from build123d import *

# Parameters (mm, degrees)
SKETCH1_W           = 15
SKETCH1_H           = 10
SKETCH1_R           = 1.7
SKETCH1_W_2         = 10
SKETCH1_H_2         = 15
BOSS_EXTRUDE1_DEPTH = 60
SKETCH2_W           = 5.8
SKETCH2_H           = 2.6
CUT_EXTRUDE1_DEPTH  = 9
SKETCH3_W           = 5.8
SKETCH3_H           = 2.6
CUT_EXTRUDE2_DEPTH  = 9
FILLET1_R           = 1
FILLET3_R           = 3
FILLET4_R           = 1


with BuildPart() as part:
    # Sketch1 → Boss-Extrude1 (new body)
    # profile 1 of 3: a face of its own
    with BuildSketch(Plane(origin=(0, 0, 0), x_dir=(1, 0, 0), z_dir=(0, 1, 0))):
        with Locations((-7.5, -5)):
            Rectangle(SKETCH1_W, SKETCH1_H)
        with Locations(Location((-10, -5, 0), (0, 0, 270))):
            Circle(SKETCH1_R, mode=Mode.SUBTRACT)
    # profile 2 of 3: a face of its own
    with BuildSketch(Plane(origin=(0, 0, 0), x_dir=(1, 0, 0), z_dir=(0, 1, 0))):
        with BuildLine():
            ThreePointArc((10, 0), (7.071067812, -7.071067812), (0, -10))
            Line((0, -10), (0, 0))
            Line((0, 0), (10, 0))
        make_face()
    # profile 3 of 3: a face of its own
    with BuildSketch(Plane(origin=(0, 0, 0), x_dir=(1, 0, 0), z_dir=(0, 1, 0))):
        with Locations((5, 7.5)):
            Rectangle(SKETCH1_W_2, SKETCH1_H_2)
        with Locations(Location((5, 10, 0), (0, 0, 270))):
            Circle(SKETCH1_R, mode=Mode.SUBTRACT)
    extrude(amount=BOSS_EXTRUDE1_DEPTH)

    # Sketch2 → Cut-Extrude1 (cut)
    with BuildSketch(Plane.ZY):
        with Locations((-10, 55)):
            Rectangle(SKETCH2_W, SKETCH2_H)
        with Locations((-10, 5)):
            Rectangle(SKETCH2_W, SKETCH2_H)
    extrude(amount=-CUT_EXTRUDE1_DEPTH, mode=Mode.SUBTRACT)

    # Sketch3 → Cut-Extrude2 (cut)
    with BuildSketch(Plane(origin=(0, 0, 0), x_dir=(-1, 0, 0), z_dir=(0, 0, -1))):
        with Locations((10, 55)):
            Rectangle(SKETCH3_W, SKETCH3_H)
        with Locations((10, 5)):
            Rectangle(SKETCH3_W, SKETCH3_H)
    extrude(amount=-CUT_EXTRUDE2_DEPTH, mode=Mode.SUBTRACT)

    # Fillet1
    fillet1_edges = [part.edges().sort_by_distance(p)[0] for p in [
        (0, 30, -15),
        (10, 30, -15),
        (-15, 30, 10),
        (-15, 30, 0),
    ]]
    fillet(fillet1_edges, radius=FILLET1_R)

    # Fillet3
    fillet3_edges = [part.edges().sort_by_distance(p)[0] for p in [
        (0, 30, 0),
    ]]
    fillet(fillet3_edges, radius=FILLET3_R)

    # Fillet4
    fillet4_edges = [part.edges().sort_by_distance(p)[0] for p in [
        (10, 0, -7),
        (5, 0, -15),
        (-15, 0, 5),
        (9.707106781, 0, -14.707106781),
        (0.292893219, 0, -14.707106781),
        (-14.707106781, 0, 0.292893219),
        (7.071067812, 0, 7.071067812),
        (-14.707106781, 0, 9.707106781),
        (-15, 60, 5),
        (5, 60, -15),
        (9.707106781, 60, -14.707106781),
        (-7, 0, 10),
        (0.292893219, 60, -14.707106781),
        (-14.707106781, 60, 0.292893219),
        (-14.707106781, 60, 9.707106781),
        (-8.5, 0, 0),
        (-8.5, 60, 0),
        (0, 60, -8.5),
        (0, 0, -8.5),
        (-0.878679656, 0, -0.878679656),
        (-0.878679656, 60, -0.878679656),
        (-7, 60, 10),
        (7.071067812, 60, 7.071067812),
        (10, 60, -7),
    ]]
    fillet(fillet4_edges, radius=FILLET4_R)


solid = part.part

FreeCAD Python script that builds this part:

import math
import FreeCAD as App
import Part
import Sketcher
Q = App.Units.Quantity


def edges_at(feature, points):
    """Names of the edges that pass closest to the given points."""
    edges = feature.Shape.Edges
    near = lambda p: min(range(len(edges)), key=lambda i: edges[i].distToShape(Part.Vertex(*p))[0])
    return sorted({f"Edge{near(p) + 1}" for p in points})


def add_polygon(sketch, points):
    """Adds a closed chain of lines whose ends are joined by coincident constraints."""
    first, n = sketch.GeometryCount, len(points)
    for a, b in zip(points, points[1:] + points[:1]):
        sketch.addGeometry(Part.LineSegment(App.Vector(*a, 0), App.Vector(*b, 0)), False)
    for i in range(n):
        sketch.addConstraint(Sketcher.Constraint("Coincident", first + i, 2, first + (i + 1) % n, 1))

doc = App.newDocument("Part")
params = doc.addObject("Spreadsheet::Sheet", "Params")
for row, (alias, value) in enumerate([
    ("sketch1_radius", "10 mm"),
    ("sketch1_diameter", "3.4 mm"),
    ("sketch1_width", "15 mm"),
    ("pad1_length", "60 mm"),
    ("sketch2_width", "2.6 mm"),
    ("sketch2_height", "5.8 mm"),
    ("pocket1_length", "9 mm"),
    ("sketch3_width", "5.8 mm"),
    ("sketch3_height", "2.6 mm"),
    ("pocket2_length", "9 mm"),
    ("fillet_radius", "1 mm"),
    ("fillet2_radius", "3 mm"),
    ("fillet3_radius", "1 mm"),
], start=1):
    params.set(f"A{row}", alias)
    params.set(f"B{row}", "=" + value)
    params.setAlias(f"B{row}", alias)

body = doc.addObject("PartDesign::Body", "Body")

# Sketch on XZ plane
sketch1 = body.newObject("Sketcher::SketchObject", "Sketch")
sketch1.AttachmentSupport = (doc.getObject("XZ_Plane"), [""])
sketch1.MapMode = "FlatFace"
sketch1.addGeometry([
    Part.LineSegment(App.Vector(-15, 0, 0), App.Vector(-15, 10, 0)),  # 0
    Part.LineSegment(App.Vector(-15, 10, 0), App.Vector(0, 10, 0)),  # 1
    Part.ArcOfCircle(Part.Circle(App.Vector(0, 0, 0), App.Vector(0, 0, 1), 10), math.radians(0), math.radians(90)),  # 2
    Part.LineSegment(App.Vector(10, 0, 0), App.Vector(10, -15, 0)),  # 3
    Part.LineSegment(App.Vector(10, -15, 0), App.Vector(0, -15, 0)),  # 4
    Part.LineSegment(App.Vector(0, -15, 0), App.Vector(0, 0, 0)),  # 5
    Part.LineSegment(App.Vector(0, 0, 0), App.Vector(-15, 0, 0)),  # 6
    Part.Circle(App.Vector(-10, 5, 0), App.Vector(0, 0, 1), 1.7),  # 7
    Part.Circle(App.Vector(5, -10, 0), App.Vector(0, 0, 1), 1.7),  # 8
], False)
sketch1.addConstraint([
    Sketcher.Constraint("Coincident", 0, 2, 1, 1),
    Sketcher.Constraint("Tangent", 1, 2, 2, 2),
    Sketcher.Constraint("Tangent", 2, 1, 3, 1),
    Sketcher.Constraint("Coincident", 3, 2, 4, 1),
    Sketcher.Constraint("Coincident", 4, 2, 5, 1),
    Sketcher.Constraint("Coincident", 5, 2, 6, 1),
    Sketcher.Constraint("Coincident", 6, 2, 0, 1),
    Sketcher.Constraint("Vertical", 0),
    Sketcher.Constraint("Horizontal", 1),
    Sketcher.Constraint("Vertical", 3),
    Sketcher.Constraint("Horizontal", 4),
    Sketcher.Constraint("Vertical", 5),
    Sketcher.Constraint("Horizontal", 6),
    Sketcher.Constraint("Coincident", 2, 3, -1, 1),
    Sketcher.Constraint("Coincident", 5, 2, -1, 1),
    Sketcher.Constraint("Equal", 7, 8),
    Sketcher.Constraint("Equal", 6, 3),
    Sketcher.Constraint("Radius", 2, Q("10 mm")),
    Sketcher.Constraint("Diameter", 7, Q("3.4 mm")),
    Sketcher.Constraint("DistanceX", 1, 1, 1, 2, Q("15 mm")),
    Sketcher.Constraint("DistanceX", 7, 3, -1, 1, Q("10 mm")),
    Sketcher.Constraint("DistanceY", -1, 1, 7, 3, Q("5 mm")),
    Sketcher.Constraint("DistanceX", -1, 1, 8, 3, Q("5 mm")),
    Sketcher.Constraint("DistanceY", 8, 3, -1, 1, Q("10 mm")),
])
sketch1.setExpression("Constraints[17]", "Params.sketch1_radius")
sketch1.setExpression("Constraints[18]", "Params.sketch1_diameter")
sketch1.setExpression("Constraints[19]", "Params.sketch1_width")
pad1 = body.newObject("PartDesign::Pad", "Pad")
pad1.Profile = sketch1
pad1.setExpression("Length", "Params.pad1_length")
pad1.Reversed = True

# Sketch on YZ plane
sketch2 = body.newObject("Sketcher::SketchObject", "Sketch001")
sketch2.AttachmentSupport = (doc.getObject("YZ_Plane"), [""])
sketch2.MapMode = "FlatFace"
add_polygon(sketch2, [(56.3, -12.9), (53.7, -12.9), (53.7, -7.1), (56.3, -7.1)])  # lines 0-3
add_polygon(sketch2, [(6.3, -12.9), (3.7, -12.9), (3.7, -7.1), (6.3, -7.1)])  # lines 4-7
sketch2.addConstraint([
    Sketcher.Constraint("Horizontal", 0),
    Sketcher.Constraint("Vertical", 1),
    Sketcher.Constraint("Horizontal", 2),
    Sketcher.Constraint("Vertical", 3),
    Sketcher.Constraint("Horizontal", 4),
    Sketcher.Constraint("Vertical", 5),
    Sketcher.Constraint("Horizontal", 6),
    Sketcher.Constraint("Vertical", 7),
    Sketcher.Constraint("Horizontal", 3, 2, 4, 2),
    Sketcher.Constraint("Horizontal", 2, 2, 5, 2),
    Sketcher.Constraint("Equal", 2, 4),
    Sketcher.Constraint("DistanceX", 0, 2, 0, 1, Q("2.6 mm")),
    Sketcher.Constraint("DistanceY", 1, 1, 1, 2, Q("5.8 mm")),
    Sketcher.Constraint("DistanceX", 4, 2, 0, 2, Q("50 mm")),
    Sketcher.Constraint("DistanceX", -1, 1, 0, 2, Q("53.7 mm")),
    Sketcher.Constraint("DistanceY", 0, 2, -1, 1, Q("12.9 mm")),
])
sketch2.setExpression("Constraints[19]", "Params.sketch2_width")
sketch2.setExpression("Constraints[20]", "Params.sketch2_height")
pocket1 = body.newObject("PartDesign::Pocket", "Pocket")
pocket1.Profile = sketch2
pocket1.setExpression("Length", "Params.pocket1_length")
pocket1.Reversed = True

# Sketch on XY plane
sketch3 = body.newObject("Sketcher::SketchObject", "Sketch002")
sketch3.AttachmentSupport = (doc.getObject("XY_Plane"), [""])
sketch3.MapMode = "FlatFace"
add_polygon(sketch3, [(-7.1, 56.3), (-7.1, 53.7), (-12.9, 53.7), (-12.9, 56.3)])  # lines 0-3
add_polygon(sketch3, [(-7.1, 6.3), (-7.1, 3.7), (-12.9, 3.7), (-12.9, 6.3)])  # lines 4-7
sketch3.addConstraint([
    Sketcher.Constraint("Vertical", 0),
    Sketcher.Constraint("Horizontal", 1),
    Sketcher.Constraint("Vertical", 2),
    Sketcher.Constraint("Horizontal", 3),
    Sketcher.Constraint("Vertical", 4),
    Sketcher.Constraint("Horizontal", 5),
    Sketcher.Constraint("Vertical", 6),
    Sketcher.Constraint("Horizontal", 7),
    Sketcher.Constraint("Vertical", 3, 2, 4, 2),
    Sketcher.Constraint("Vertical", 2, 2, 5, 2),
    Sketcher.Constraint("Equal", 2, 4),
    Sketcher.Constraint("DistanceX", 1, 2, 1, 1, Q("5.8 mm")),
    Sketcher.Constraint("DistanceY", 0, 2, 0, 1, Q("2.6 mm")),
    Sketcher.Constraint("DistanceY", 4, 2, 0, 2, Q("50 mm")),
    Sketcher.Constraint("DistanceX", 0, 2, -1, 1, Q("7.1 mm")),
    Sketcher.Constraint("DistanceY", -1, 1, 0, 2, Q("53.7 mm")),
])
sketch3.setExpression("Constraints[19]", "Params.sketch3_width")
sketch3.setExpression("Constraints[20]", "Params.sketch3_height")
pocket2 = body.newObject("PartDesign::Pocket", "Pocket001")
pocket2.Profile = sketch3
pocket2.setExpression("Length", "Params.pocket2_length")
pocket2.Reversed = True
doc.recompute()

fillet = body.newObject("PartDesign::Fillet", "Fillet")
fillet.Base = (pocket2, edges_at(pocket2, [
    (0, 30, -15),
    (10, 30, -15),
    (-15, 30, 10),
    (-15, 30, 0),
]))
fillet.setExpression("Radius", "Params.fillet_radius")
doc.recompute()

fillet2 = body.newObject("PartDesign::Fillet", "Fillet001")
fillet2.Base = (fillet, edges_at(fillet, [(0, 30, 0)]))
fillet2.setExpression("Radius", "Params.fillet2_radius")
doc.recompute()

fillet3 = body.newObject("PartDesign::Fillet", "Fillet002")
fillet3.Base = (fillet2, edges_at(fillet2, [
    (10, 0, -7),
    (5, 0, -15),
    (-15, 0, 5),
    (9.707, 0, -14.707),
    (0.293, 0, -14.707),
    (-14.707, 0, 0.293),
    (7.071, 0, 7.071),
    (-14.707, 0, 9.707),
    (-15, 60, 5),
    (5, 60, -15),
    (9.707, 60, -14.707),
    (-7, 0, 10),
    (0.293, 60, -14.707),
    (-14.707, 60, 0.293),
    (-14.707, 60, 9.707),
    (-8.5, 0, 0),
    (-8.5, 60, 0),
    (0, 60, -8.5),
    (0, 0, -8.5),
    (-0.879, 0, -0.879),
    (-0.879, 60, -0.879),
    (-7, 60, 10),
    (7.071, 60, 7.071),
    (10, 60, -7),
]))
fillet3.setExpression("Radius", "Params.fillet3_radius")

doc.recompute()
